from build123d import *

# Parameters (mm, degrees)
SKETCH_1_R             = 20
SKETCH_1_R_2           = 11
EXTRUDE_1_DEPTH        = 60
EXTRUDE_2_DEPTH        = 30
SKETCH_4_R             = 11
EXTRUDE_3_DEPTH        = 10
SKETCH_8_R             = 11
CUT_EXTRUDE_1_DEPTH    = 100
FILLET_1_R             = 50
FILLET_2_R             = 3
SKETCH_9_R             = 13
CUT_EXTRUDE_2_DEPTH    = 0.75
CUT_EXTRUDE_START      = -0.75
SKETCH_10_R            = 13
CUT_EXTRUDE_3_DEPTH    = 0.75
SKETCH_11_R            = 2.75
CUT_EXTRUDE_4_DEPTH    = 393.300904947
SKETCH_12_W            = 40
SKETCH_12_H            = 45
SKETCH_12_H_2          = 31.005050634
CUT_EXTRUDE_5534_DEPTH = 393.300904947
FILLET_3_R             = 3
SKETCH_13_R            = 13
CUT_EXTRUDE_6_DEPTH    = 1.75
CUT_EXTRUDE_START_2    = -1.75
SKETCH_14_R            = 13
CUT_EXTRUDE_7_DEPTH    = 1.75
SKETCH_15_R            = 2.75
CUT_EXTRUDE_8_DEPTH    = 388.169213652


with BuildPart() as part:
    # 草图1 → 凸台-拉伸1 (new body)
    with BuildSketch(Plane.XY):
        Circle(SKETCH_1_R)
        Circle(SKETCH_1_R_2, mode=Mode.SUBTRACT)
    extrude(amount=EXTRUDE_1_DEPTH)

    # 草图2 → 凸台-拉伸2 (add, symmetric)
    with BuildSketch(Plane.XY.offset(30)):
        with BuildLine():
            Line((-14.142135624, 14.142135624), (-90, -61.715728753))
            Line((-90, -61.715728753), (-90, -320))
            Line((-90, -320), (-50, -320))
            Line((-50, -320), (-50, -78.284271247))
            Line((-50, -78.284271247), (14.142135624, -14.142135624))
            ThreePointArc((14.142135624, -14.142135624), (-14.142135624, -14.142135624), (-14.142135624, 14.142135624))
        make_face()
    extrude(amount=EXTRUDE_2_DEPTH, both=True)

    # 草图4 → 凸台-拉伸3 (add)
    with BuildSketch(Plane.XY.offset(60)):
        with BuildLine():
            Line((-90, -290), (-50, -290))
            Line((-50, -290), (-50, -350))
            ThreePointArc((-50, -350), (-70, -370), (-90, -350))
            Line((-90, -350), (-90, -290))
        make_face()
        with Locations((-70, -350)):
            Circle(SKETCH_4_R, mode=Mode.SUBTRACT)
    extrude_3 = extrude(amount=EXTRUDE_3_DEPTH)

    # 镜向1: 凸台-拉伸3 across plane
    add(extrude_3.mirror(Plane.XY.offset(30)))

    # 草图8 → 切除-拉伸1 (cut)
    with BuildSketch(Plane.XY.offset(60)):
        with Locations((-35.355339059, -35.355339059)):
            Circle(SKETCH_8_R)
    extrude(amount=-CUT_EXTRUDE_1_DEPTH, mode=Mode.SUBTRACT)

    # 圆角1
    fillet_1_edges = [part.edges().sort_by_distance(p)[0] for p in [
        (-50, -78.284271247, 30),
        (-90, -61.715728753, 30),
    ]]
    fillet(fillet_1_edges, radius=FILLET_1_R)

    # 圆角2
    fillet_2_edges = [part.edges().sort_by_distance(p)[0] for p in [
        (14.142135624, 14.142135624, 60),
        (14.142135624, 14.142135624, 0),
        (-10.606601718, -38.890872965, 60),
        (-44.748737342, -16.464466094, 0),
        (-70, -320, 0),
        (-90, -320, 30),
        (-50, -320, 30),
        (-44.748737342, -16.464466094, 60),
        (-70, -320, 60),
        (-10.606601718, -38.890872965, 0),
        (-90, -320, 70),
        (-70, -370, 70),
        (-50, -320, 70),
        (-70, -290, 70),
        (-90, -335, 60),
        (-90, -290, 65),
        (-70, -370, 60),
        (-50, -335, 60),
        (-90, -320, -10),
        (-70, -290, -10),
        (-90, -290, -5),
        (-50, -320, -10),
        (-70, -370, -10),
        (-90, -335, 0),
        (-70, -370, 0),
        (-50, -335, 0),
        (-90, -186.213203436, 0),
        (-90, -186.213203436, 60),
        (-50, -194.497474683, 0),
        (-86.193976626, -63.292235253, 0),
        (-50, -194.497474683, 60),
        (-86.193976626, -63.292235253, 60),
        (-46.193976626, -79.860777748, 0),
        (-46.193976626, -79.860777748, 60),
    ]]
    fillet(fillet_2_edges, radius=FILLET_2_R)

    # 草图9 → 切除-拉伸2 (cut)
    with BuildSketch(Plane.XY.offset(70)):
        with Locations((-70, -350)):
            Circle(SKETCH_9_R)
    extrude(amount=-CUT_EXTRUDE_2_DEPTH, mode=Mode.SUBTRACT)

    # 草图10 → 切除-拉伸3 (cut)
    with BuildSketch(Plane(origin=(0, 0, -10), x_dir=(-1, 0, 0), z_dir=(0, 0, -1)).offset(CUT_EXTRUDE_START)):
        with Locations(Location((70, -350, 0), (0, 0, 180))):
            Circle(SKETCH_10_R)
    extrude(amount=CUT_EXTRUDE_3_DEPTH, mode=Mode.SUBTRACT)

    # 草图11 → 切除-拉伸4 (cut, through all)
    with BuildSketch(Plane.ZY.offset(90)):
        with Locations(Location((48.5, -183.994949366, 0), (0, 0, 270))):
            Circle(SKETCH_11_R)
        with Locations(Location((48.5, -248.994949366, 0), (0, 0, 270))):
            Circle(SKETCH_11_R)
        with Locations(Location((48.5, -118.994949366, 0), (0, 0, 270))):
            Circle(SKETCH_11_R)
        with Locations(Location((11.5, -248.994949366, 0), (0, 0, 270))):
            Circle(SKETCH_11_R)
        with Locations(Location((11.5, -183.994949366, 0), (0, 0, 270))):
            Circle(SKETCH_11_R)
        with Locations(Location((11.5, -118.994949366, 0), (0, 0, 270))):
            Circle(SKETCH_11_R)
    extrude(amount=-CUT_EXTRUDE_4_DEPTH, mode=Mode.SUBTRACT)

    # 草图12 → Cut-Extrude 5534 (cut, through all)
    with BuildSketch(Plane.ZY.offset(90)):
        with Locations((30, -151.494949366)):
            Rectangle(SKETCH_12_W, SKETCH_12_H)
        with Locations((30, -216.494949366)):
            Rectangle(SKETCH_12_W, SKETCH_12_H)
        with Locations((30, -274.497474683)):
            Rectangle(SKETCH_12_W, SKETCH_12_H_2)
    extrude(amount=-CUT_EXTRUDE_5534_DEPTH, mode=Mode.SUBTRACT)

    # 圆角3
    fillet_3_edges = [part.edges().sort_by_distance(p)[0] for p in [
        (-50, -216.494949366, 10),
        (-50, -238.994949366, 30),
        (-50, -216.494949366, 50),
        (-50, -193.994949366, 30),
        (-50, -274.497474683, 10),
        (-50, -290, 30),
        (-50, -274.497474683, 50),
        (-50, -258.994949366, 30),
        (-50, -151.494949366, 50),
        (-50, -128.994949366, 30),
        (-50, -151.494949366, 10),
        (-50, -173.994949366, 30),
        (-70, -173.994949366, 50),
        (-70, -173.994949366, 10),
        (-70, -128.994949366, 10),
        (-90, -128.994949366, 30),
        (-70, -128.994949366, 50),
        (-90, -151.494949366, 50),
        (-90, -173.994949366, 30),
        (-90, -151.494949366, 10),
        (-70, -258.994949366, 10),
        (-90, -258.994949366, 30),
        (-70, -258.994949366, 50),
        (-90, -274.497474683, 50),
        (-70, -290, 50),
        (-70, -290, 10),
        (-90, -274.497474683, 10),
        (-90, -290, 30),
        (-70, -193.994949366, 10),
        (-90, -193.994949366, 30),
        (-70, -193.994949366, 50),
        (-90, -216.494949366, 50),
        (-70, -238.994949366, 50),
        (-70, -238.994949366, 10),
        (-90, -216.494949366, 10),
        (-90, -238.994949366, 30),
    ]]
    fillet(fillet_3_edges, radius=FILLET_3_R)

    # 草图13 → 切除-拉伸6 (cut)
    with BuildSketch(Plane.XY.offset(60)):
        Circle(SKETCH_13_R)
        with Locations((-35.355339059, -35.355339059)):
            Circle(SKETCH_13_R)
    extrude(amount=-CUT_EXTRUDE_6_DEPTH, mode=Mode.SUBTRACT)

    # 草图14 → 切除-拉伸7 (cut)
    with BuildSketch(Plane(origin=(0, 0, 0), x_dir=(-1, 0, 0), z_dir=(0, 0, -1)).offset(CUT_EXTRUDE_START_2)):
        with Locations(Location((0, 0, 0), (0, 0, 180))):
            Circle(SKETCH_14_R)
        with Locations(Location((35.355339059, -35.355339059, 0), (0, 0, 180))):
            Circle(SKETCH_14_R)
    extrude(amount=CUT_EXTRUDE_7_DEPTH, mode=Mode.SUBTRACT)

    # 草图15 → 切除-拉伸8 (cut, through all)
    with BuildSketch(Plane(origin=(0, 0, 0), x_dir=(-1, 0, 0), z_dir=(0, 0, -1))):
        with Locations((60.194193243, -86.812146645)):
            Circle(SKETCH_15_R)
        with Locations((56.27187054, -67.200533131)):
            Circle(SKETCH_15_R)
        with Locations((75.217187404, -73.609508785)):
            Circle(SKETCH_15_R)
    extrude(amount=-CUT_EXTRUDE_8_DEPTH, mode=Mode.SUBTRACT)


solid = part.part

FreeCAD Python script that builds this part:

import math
import FreeCAD as App
import Part
import Sketcher
Q = App.Units.Quantity


def edges_at(feature, points):
    """Names of the edges that pass closest to the given points."""
    edges = feature.Shape.Edges
    near = lambda p: min(range(len(edges)), key=lambda i: edges[i].distToShape(Part.Vertex(*p))[0])
    return sorted({f"Edge{near(p) + 1}" for p in points})


def add_polygon(sketch, points):
    """Adds a closed chain of lines whose ends are joined by coincident constraints."""
    first, n = sketch.GeometryCount, len(points)
    for a, b in zip(points, points[1:] + points[:1]):
        sketch.addGeometry(Part.LineSegment(App.Vector(*a, 0), App.Vector(*b, 0)), False)
    for i in range(n):
        sketch.addConstraint(Sketcher.Constraint("Coincident", first + i, 2, first + (i + 1) % n, 1))

doc = App.newDocument("Part")
body = doc.addObject("PartDesign::Body", "Body")

# Sketch on XY plane
sketch1 = body.newObject("Sketcher::SketchObject", "Sketch")
sketch1.AttachmentSupport = (doc.getObject("XY_Plane"), [""])
sketch1.MapMode = "FlatFace"
sketch1.addGeometry(Part.Circle(App.Vector(0, 0, 0), App.Vector(0, 0, 1), 20), False)
sketch1.addGeometry(Part.Circle(App.Vector(0, 0, 0), App.Vector(0, 0, 1), 11), False)
sketch1.addConstraint(Sketcher.Constraint("Coincident", 0, 3, -1, 1))
sketch1.addConstraint(Sketcher.Constraint("Coincident", 1, 3, -1, 1))
sketch1.addConstraint(Sketcher.Constraint("Diameter", 0, 40.0))
sketch1.addConstraint(Sketcher.Constraint("Diameter", 1, 22.0))
pad1 = body.newObject("PartDesign::Pad", "Pad")
pad1.Profile = sketch1
pad1.Length = 60

# Sketch on XY plane
sketch2 = body.newObject("Sketcher::SketchObject", "Sketch001")
sketch2.AttachmentSupport = (doc.getObject("XY_Plane"), [""])
sketch2.MapMode = "FlatFace"
sketch2.AttachmentOffset = App.Placement(App.Vector(0, 0, 30), App.Rotation())
sketch2.addGeometry(Part.LineSegment(App.Vector(-14, 14, 0), App.Vector(-90, -62, 0)), False)
sketch2.addGeometry(Part.LineSegment(App.Vector(-90, -62, 0), App.Vector(-90, -320, 0)), False)
sketch2.addGeometry(Part.LineSegment(App.Vector(-90, -320, 0), App.Vector(-50, -320, 0)), False)
sketch2.addGeometry(Part.LineSegment(App.Vector(-50, -320, 0), App.Vector(-50, -78, 0)), False)
sketch2.addGeometry(Part.LineSegment(App.Vector(-50, -78, 0), App.Vector(14, -14, 0)), False)
sketch2.addGeometry(Part.ArcOfCircle(Part.Circle(App.Vector(0, 0, 0), App.Vector(0, 0, 1), 20), math.radians(135), math.radians(315)), False)
sketch2.addConstraint(Sketcher.Constraint("Coincident", 0, 2, 1, 1))
sketch2.addConstraint(Sketcher.Constraint("Coincident", 1, 2, 2, 1))
sketch2.addConstraint(Sketcher.Constraint("Coincident", 2, 2, 3, 1))
sketch2.addConstraint(Sketcher.Constraint("Coincident", 3, 2, 4, 1))
sketch2.addConstraint(Sketcher.Constraint("Tangent", 4, 2, 5, 2))
sketch2.addConstraint(Sketcher.Constraint("Tangent", 5, 1, 0, 1))
sketch2.addConstraint(Sketcher.Constraint("Vertical", 1))
sketch2.addConstraint(Sketcher.Constraint("Horizontal", 2))
sketch2.addConstraint(Sketcher.Constraint("Vertical", 3))
sketch2.addConstraint(Sketcher.Constraint("Coincident", 5, 3, -1, 1))
sketch2.addConstraint(Sketcher.Constraint("Parallel", 0, 4))
sketch2.addConstraint(Sketcher.Constraint("Radius", 5, 20.0))
sketch2.addConstraint(Sketcher.Constraint("DistanceX", 2, 1, 2, 2, 40.0))
sketch2.addConstraint(Sketcher.Constraint("Angle", 0, Q("-135 deg")))
sketch2.addConstraint(Sketcher.Constraint("DistanceX", 0, 2, -1, 1, 90.0))
sketch2.addConstraint(Sketcher.Constraint("DistanceY", 1, 2, -1, 1, 320.0))
pad2 = body.newObject("PartDesign::Pad", "Pad001")
pad2.Profile = sketch2
pad2.Length = 60
pad2.Midplane = True

# Sketch on XY plane
sketch3 = body.newObject("Sketcher::SketchObject", "Sketch002")
sketch3.AttachmentSupport = (doc.getObject("XY_Plane"), [""])
sketch3.MapMode = "FlatFace"
sketch3.AttachmentOffset = App.Placement(App.Vector(0, 0, 60), App.Rotation())
sketch3.addGeometry(Part.LineSegment(App.Vector(-50, -290, 0), App.Vector(-90, -290, 0)), False)
sketch3.addGeometry(Part.LineSegment(App.Vector(-90, -290, 0), App.Vector(-90, -350, 0)), False)
sketch3.addGeometry(Part.ArcOfCircle(Part.Circle(App.Vector(-70, -350, 0), App.Vector(0, 0, 1), 20), math.radians(180), math.radians(360)), False)
sketch3.addGeometry(Part.LineSegment(App.Vector(-50, -350, 0), App.Vector(-50, -290, 0)), False)
sketch3.addGeometry(Part.Circle(App.Vector(-70, -350, 0), App.Vector(0, 0, 1), 11), False)
sketch3.addConstraint(Sketcher.Constraint("Coincident", 0, 2, 1, 1))
sketch3.addConstraint(Sketcher.Constraint("Tangent", 1, 2, 2, 1))
sketch3.addConstraint(Sketcher.Constraint("Tangent", 2, 2, 3, 1))
sketch3.addConstraint(Sketcher.Constraint("Coincident", 3, 2, 0, 1))
sketch3.addConstraint(Sketcher.Constraint("Horizontal", 0))
sketch3.addConstraint(Sketcher.Constraint("Vertical", 1))
sketch3.addConstraint(Sketcher.Constraint("Vertical", 3))
sketch3.addConstraint(Sketcher.Constraint("Coincident", 4, 3, 2, 3))
sketch3.addConstraint(Sketcher.Constraint("Diameter", 4, 22.0))
sketch3.addConstraint(Sketcher.Constraint("Radius", 2, 20.0))
sketch3.addConstraint(Sketcher.Constraint("DistanceY", 1, 2, 1, 1, 60.0))
sketch3.addConstraint(Sketcher.Constraint("DistanceX", 2, 3, -1, 1, 70.0))
sketch3.addConstraint(Sketcher.Constraint("DistanceY", 2, 3, -1, 1, 350.0))
pad3 = body.newObject("PartDesign::Pad", "Pad002")
pad3.Profile = sketch3
pad3.Length = 10
doc.recompute()

datumplane = body.newObject("PartDesign::Plane", "DatumPlane")
datumplane.AttachmentSupport = (doc.getObject("XY_Plane"), [""])
datumplane.MapMode = "FlatFace"
datumplane.AttachmentOffset = App.Placement(App.Vector(0, 0, 30), App.Rotation())
mirrored = body.newObject("PartDesign::Mirrored", "Mirrored")
mirrored.Originals = [pad3]
mirrored.MirrorPlane = (datumplane, [""])
body.Tip = mirrored

# Sketch on XY plane
sketch4 = body.newObject("Sketcher::SketchObject", "Sketch003")
sketch4.AttachmentSupport = (doc.getObject("XY_Plane"), [""])
sketch4.MapMode = "FlatFace"
sketch4.AttachmentOffset = App.Placement(App.Vector(0, 0, 60), App.Rotation())
sketch4.addGeometry(Part.Circle(App.Vector(-35, -35, 0), App.Vector(0, 0, 1), 11), False)
sketch4.addConstraint(Sketcher.Constraint("Diameter", 0, 22.0))
sketch4.addConstraint(Sketcher.Constraint("DistanceX", 0, 3, -1, 1, 35.355339))
sketch4.addConstraint(Sketcher.Constraint("DistanceY", 0, 3, -1, 1, 35.355339))
pocket1 = body.newObject("PartDesign::Pocket", "Pocket")
pocket1.Profile = sketch4
pocket1.Length = 100
doc.recompute()

fillet = body.newObject("PartDesign::Fillet", "Fillet")
fillet.Base = (pocket1, edges_at(pocket1, [(-50, -78.284, 30), (-90, -61.716, 30)]))
fillet.Radius = 50
doc.recompute()

fillet2 = body.newObject("PartDesign::Fillet", "Fillet001")
fillet2.Base = (fillet, edges_at(fillet, [
    (14.142, 14.142, 60),
    (14.142, 14.142, 0),
    (-10.607, -38.891, 60),
    (-44.749, -16.464, 0),
    (-70, -320, 0),
    (-90, -320, 30),
    (-50, -320, 30),
    (-44.749, -16.464, 60),
    (-70, -320, 60),
    (-10.607, -38.891, 0),
    (-90, -320, 70),
    (-70, -370, 70),
    (-50, -320, 70),
    (-70, -290, 70),
    (-90, -335, 60),
    (-90, -290, 65),
    (-70, -370, 60),
    (-50, -335, 60),
    (-90, -320, -10),
    (-70, -290, -10),
    (-90, -290, -5),
    (-50, -320, -10),
    (-70, -370, -10),
    (-90, -335, 0),
    (-70, -370, 0),
    (-50, -335, 0),
    (-90, -186.213, 0),
    (-90, -186.213, 60),
    (-50, -194.497, 0),
    (-86.194, -63.292, 0),
    (-50, -194.497, 60),
    (-86.194, -63.292, 60),
    (-46.194, -79.861, 0),
    (-46.194, -79.861, 60),
]))
fillet2.Radius = 3

# Sketch on XY plane
sketch5 = body.newObject("Sketcher::SketchObject", "Sketch004")
sketch5.AttachmentSupport = (doc.getObject("XY_Plane"), [""])
sketch5.MapMode = "FlatFace"
sketch5.AttachmentOffset = App.Placement(App.Vector(0, 0, 70), App.Rotation())
sketch5.addGeometry(Part.Circle(App.Vector(-70, -350, 0), App.Vector(0, 0, 1), 13), False)
sketch5.addConstraint(Sketcher.Constraint("Diameter", 0, 26.0))
sketch5.addConstraint(Sketcher.Constraint("DistanceX", 0, 3, -1, 1, 70.0))
sketch5.addConstraint(Sketcher.Constraint("DistanceY", 0, 3, -1, 1, 350.0))
pocket2 = body.newObject("PartDesign::Pocket", "Pocket001")
pocket2.Profile = sketch5
pocket2.Length = 0.75

# Sketch on XY plane
sketch6 = body.newObject("Sketcher::SketchObject", "Sketch005")
sketch6.AttachmentSupport = (doc.getObject("XY_Plane"), [""])
sketch6.MapMode = "FlatFace"
sketch6.AttachmentOffset = App.Placement(App.Vector(0, 0, -9.25), App.Rotation())
sketch6.addGeometry(Part.Circle(App.Vector(-70, -350, 0), App.Vector(0, 0, 1), 13), False)
sketch6.addConstraint(Sketcher.Constraint("Diameter", 0, 26.0))
sketch6.addConstraint(Sketcher.Constraint("DistanceX", 0, 3, -1, 1, 70.0))
sketch6.addConstraint(Sketcher.Constraint("DistanceY", 0, 3, -1, 1, 350.0))
pocket3 = body.newObject("PartDesign::Pocket", "Pocket002")
pocket3.Profile = sketch6
pocket3.Length = 0.75

# Sketch on YZ plane
sketch7 = body.newObject("Sketcher::SketchObject", "Sketch006")
sketch7.AttachmentSupport = (doc.getObject("YZ_Plane"), [""])
sketch7.MapMode = "FlatFace"
sketch7.AttachmentOffset = App.Placement(App.Vector(0, 0, -90), App.Rotation())
sketch7.addGeometry(Part.Circle(App.Vector(-184, 48.5, 0), App.Vector(0, 0, 1), 2.8), False)
sketch7.addGeometry(Part.Circle(App.Vector(-249, 48.5, 0), App.Vector(0, 0, 1), 2.8), False)
sketch7.addGeometry(Part.Circle(App.Vector(-119, 48.5, 0), App.Vector(0, 0, 1), 2.8), False)
sketch7.addGeometry(Part.Circle(App.Vector(-249, 11.5, 0), App.Vector(0, 0, 1), 2.8), False)
sketch7.addGeometry(Part.Circle(App.Vector(-184, 11.5, 0), App.Vector(0, 0, 1), 2.8), False)
sketch7.addGeometry(Part.Circle(App.Vector(-119, 11.5, 0), App.Vector(0, 0, 1), 2.8), False)
sketch7.addConstraint(Sketcher.Constraint("Equal", 0, 1))
sketch7.addConstraint(Sketcher.Constraint("Equal", 1, 2))
sketch7.addConstraint(Sketcher.Constraint("Equal", 2, 3))
sketch7.addConstraint(Sketcher.Constraint("Equal", 3, 4))
sketch7.addConstraint(Sketcher.Constraint("Equal", 4, 5))
sketch7.addConstraint(Sketcher.Constraint("Horizontal", 0, 3, 1, 3))
sketch7.addConstraint(Sketcher.Constraint("Horizontal", 1, 3, 2, 3))
sketch7.addConstraint(Sketcher.Constraint("Horizontal", 3, 3, 4, 3))
sketch7.addConstraint(Sketcher.Constraint("Horizontal", 4, 3, 5, 3))
sketch7.addConstraint(Sketcher.Constraint("Vertical", 1, 3, 3, 3))
sketch7.addConstraint(Sketcher.Constraint("Vertical", 0, 3, 4, 3))
sketch7.addConstraint(Sketcher.Constraint("Vertical", 2, 3, 5, 3))
sketch7.addConstraint(Sketcher.Constraint("Diameter", 0, 5.5))
sketch7.addConstraint(Sketcher.Constraint("DistanceX", 1, 3, 0, 3, 65.0))
sketch7.addConstraint(Sketcher.Constraint("DistanceX", 0, 3, 2, 3, 65.0))
sketch7.addConstraint(Sketcher.Constraint("DistanceY", 3, 3, 1, 3, 37.0))
sketch7.addConstraint(Sketcher.Constraint("DistanceY", -1, 1, 0, 3, 48.5))
sketch7.addConstraint(Sketcher.Constraint("DistanceX", 0, 3, -1, 1, 183.994949))
pocket4 = body.newObject("PartDesign::Pocket", "Pocket003")
pocket4.Profile = sketch7
pocket4.Type = "ThroughAll"
pocket4.Reversed = True

# Sketch on YZ plane
sketch8 = body.newObject("Sketcher::SketchObject", "Sketch007")
sketch8.AttachmentSupport = (doc.getObject("YZ_Plane"), [""])
sketch8.MapMode = "FlatFace"
sketch8.AttachmentOffset = App.Placement(App.Vector(0, 0, -90), App.Rotation())
add_polygon(sketch8, [(-129, 10), (-174, 10), (-174, 50), (-129, 50)])  # lines 0-3
add_polygon(sketch8, [(-194, 10), (-239, 10), (-239, 50), (-194, 50)])  # lines 4-7
add_polygon(sketch8, [(-259, 10), (-290, 10), (-290, 50), (-259, 50)])  # lines 8-11
sketch8.addConstraint(Sketcher.Constraint("Horizontal", 0))
sketch8.addConstraint(Sketcher.Constraint("Vertical", 1))
sketch8.addConstraint(Sketcher.Constraint("Horizontal", 2))
sketch8.addConstraint(Sketcher.Constraint("Vertical", 3))
sketch8.addConstraint(Sketcher.Constraint("Horizontal", 4))
sketch8.addConstraint(Sketcher.Constraint("Vertical", 5))
sketch8.addConstraint(Sketcher.Constraint("Horizontal", 6))
sketch8.addConstraint(Sketcher.Constraint("Vertical", 7))
sketch8.addConstraint(Sketcher.Constraint("Horizontal", 8))
sketch8.addConstraint(Sketcher.Constraint("Vertical", 9))
sketch8.addConstraint(Sketcher.Constraint("Horizontal", 10))
sketch8.addConstraint(Sketcher.Constraint("Vertical", 11))
sketch8.addConstraint(Sketcher.Constraint("Horizontal", 3, 2, 4, 2))
sketch8.addConstraint(Sketcher.Constraint("Horizontal", 2, 2, 5, 2))
sketch8.addConstraint(Sketcher.Constraint("Horizontal", 7, 2, 8, 2))
sketch8.addConstraint(Sketcher.Constraint("Horizontal", 6, 2, 9, 2))
sketch8.addConstraint(Sketcher.Constraint("Equal", 2, 4))
sketch8.addConstraint(Sketcher.Constraint("DistanceX", 0, 2, 0, 1, 45.0))
sketch8.addConstraint(Sketcher.Constraint("DistanceY", 1, 1, 1, 2, 40.0))
sketch8.addConstraint(Sketcher.Constraint("DistanceY", -1, 1, 0, 2, 10.0))
sketch8.addConstraint(Sketcher.Constraint("DistanceX", 8, 2, -1, 1, 290.0))
sketch8.addConstraint(Sketcher.Constraint("DistanceX", 4, 2, 0, 2, 65.0))
sketch8.addConstraint(Sketcher.Constraint("DistanceX", 10, 2, 5, 2, 20.0))
sketch8.addConstraint(Sketcher.Constraint("DistanceX", 8, 2, 8, 1, 31.005051))
pocket5 = body.newObject("PartDesign::Pocket", "Pocket004")
pocket5.Profile = sketch8
pocket5.Type = "ThroughAll"
pocket5.Reversed = True
doc.recompute()

fillet3 = body.newObject("PartDesign::Fillet", "Fillet002")
fillet3.Base = (pocket5, edges_at(pocket5, [
    (-50, -216.495, 10),
    (-50, -238.995, 30),
    (-50, -216.495, 50),
    (-50, -193.995, 30),
    (-50, -274.497, 10),
    (-50, -290, 30),
    (-50, -274.497, 50),
    (-50, -258.995, 30),
    (-50, -151.495, 50),
    (-50, -128.995, 30),
    (-50, -151.495, 10),
    (-50, -173.995, 30),
    (-70, -173.995, 50),
    (-70, -173.995, 10),
    (-70, -128.995, 10),
    (-90, -128.995, 30),
    (-70, -128.995, 50),
    (-90, -151.495, 50),
    (-90, -173.995, 30),
    (-90, -151.495, 10),
    (-70, -258.995, 10),
    (-90, -258.995, 30),
    (-70, -258.995, 50),
    (-90, -274.497, 50),
    (-70, -290, 50),
    (-70, -290, 10),
    (-90, -274.497, 10),
    (-90, -290, 30),
    (-70, -193.995, 10),
    (-90, -193.995, 30),
    (-70, -193.995, 50),
    (-90, -216.495, 50),
    (-70, -238.995, 50),
    (-70, -238.995, 10),
    (-90, -216.495, 10),
    (-90, -238.995, 30),
]))
fillet3.Radius = 3

# Sketch on XY plane
sketch9 = body.newObject("Sketcher::SketchObject", "Sketch008")
sketch9.AttachmentSupport = (doc.getObject("XY_Plane"), [""])
sketch9.MapMode = "FlatFace"
sketch9.AttachmentOffset = App.Placement(App.Vector(0, 0, 60), App.Rotation())
sketch9.addGeometry(Part.Circle(App.Vector(0, 0, 0), App.Vector(0, 0, 1), 13), False)
sketch9.addGeometry(Part.Circle(App.Vector(-35, -35, 0), App.Vector(0, 0, 1), 13), False)
sketch9.addConstraint(Sketcher.Constraint("Coincident", 0, 3, -1, 1))
sketch9.addConstraint(Sketcher.Constraint("Equal", 0, 1))
sketch9.addConstraint(Sketcher.Constraint("Diameter", 0, 26.0))
sketch9.addConstraint(Sketcher.Constraint("DistanceX", 1, 3, -1, 1, 35.355339))
sketch9.addConstraint(Sketcher.Constraint("DistanceY", 1, 3, -1, 1, 35.355339))
pocket6 = body.newObject("PartDesign::Pocket", "Pocket005")
pocket6.Profile = sketch9
pocket6.Length = 1.75

# Sketch on XY plane
sketch10 = body.newObject("Sketcher::SketchObject", "Sketch009")
sketch10.AttachmentSupport = (doc.getObject("XY_Plane"), [""])
sketch10.MapMode = "FlatFace"
sketch10.AttachmentOffset = App.Placement(App.Vector(0, 0, 1.75), App.Rotation())
sketch10.addGeometry(Part.Circle(App.Vector(0, 0, 0), App.Vector(0, 0, 1), 13), False)
sketch10.addGeometry(Part.Circle(App.Vector(-35, -35, 0), App.Vector(0, 0, 1), 13), False)
sketch10.addConstraint(Sketcher.Constraint("Coincident", 0, 3, -1, 1))
sketch10.addConstraint(Sketcher.Constraint("Equal", 0, 1))
sketch10.addConstraint(Sketcher.Constraint("Diameter", 0, 26.0))
sketch10.addConstraint(Sketcher.Constraint("DistanceX", 1, 3, -1, 1, 35.355339))
sketch10.addConstraint(Sketcher.Constraint("DistanceY", 1, 3, -1, 1, 35.355339))
pocket7 = body.newObject("PartDesign::Pocket", "Pocket006")
pocket7.Profile = sketch10
pocket7.Length = 1.75

# Sketch on XY plane
sketch11 = body.newObject("Sketcher::SketchObject", "Sketch010")
sketch11.AttachmentSupport = (doc.getObject("XY_Plane"), [""])
sketch11.MapMode = "FlatFace"
sketch11.addGeometry(Part.Circle(App.Vector(-60.2, -86.8, 0), App.Vector(0, 0, 1), 2.8), False)
sketch11.addGeometry(Part.Circle(App.Vector(-56.3, -67.2, 0), App.Vector(0, 0, 1), 2.8), False)
sketch11.addGeometry(Part.Circle(App.Vector(-75.2, -73.6, 0), App.Vector(0, 0, 1), 2.8), False)
sketch11.addConstraint(Sketcher.Constraint("Equal", 0, 1))
sketch11.addConstraint(Sketcher.Constraint("Equal", 1, 2))
sketch11.addConstraint(Sketcher.Constraint("Diameter", 0, 5.5))
sketch11.addConstraint(Sketcher.Constraint("DistanceX", 1, 3, -1, 1, 56.271871))
sketch11.addConstraint(Sketcher.Constraint("DistanceY", 2, 3, -1, 1, 73.609509))
sketch11.addConstraint(Sketcher.Constraint("DistanceX", 0, 3, -1, 1, 60.194193))
sketch11.addConstraint(Sketcher.Constraint("DistanceY", 0, 3, -1, 1, 86.812147))
sketch11.addConstraint(Sketcher.Constraint("DistanceY", 1, 3, -1, 1, 67.200533))
sketch11.addConstraint(Sketcher.Constraint("DistanceX", 2, 3, -1, 1, 75.217187))
pocket8 = body.newObject("PartDesign::Pocket", "Pocket007")
pocket8.Profile = sketch11
pocket8.Type = "ThroughAll"
pocket8.Reversed = True

doc.recompute()
